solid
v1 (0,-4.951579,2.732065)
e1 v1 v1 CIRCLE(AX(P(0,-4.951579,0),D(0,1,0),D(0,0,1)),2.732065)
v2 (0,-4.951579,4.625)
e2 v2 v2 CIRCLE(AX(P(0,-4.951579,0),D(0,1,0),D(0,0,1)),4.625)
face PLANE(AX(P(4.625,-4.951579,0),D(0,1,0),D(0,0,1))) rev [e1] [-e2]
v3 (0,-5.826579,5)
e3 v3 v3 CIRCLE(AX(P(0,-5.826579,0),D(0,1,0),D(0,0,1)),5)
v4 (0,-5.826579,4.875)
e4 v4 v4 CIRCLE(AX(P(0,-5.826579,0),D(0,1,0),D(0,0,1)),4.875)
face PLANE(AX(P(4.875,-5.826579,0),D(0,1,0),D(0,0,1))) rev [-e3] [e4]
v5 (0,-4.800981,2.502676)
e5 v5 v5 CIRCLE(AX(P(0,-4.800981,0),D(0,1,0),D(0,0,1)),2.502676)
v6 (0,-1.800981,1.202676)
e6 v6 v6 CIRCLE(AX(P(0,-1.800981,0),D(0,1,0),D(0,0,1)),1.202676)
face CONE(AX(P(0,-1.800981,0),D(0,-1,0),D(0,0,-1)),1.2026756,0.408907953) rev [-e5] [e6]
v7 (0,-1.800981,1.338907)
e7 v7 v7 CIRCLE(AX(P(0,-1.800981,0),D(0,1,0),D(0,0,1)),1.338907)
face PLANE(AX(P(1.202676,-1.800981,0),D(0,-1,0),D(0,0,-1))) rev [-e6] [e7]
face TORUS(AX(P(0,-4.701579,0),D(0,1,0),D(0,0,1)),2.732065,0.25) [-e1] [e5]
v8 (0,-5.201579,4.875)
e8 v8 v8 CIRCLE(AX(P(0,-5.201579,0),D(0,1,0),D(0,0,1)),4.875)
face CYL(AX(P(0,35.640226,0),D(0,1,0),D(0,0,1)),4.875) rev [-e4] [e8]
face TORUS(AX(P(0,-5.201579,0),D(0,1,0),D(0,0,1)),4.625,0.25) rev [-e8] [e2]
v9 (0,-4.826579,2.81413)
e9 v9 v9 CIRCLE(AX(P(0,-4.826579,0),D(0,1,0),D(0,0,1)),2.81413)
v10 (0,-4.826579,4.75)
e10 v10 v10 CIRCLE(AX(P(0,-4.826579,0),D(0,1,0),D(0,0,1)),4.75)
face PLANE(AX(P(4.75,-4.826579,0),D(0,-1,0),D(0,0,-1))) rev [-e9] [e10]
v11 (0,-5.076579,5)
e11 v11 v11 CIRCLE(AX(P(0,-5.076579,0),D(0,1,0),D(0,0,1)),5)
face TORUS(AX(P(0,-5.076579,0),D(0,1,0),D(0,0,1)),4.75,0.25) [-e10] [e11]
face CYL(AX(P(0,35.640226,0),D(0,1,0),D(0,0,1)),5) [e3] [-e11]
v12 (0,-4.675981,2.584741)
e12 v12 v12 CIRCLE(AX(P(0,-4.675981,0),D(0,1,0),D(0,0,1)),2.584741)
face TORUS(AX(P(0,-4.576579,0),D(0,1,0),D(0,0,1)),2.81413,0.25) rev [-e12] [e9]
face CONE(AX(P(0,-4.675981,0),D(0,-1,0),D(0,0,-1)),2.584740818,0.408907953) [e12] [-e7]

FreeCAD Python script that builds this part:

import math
import FreeCAD as App
import Part
import Sketcher

doc = App.newDocument("Part")
params = doc.addObject("Spreadsheet::Sheet", "Params")
for row, (alias, value) in enumerate([
    ("sketch1_radius", "0.25 mm"),
    ("revolution_angle", "360 deg"),
], start=1):
    params.set(f"A{row}", alias)
    params.set(f"B{row}", "=" + value)
    params.setAlias(f"B{row}", alias)

body = doc.addObject("PartDesign::Body", "Body")

# Sketch on XY plane
sketch1 = body.newObject("Sketcher::SketchObject", "Sketch")
sketch1.AttachmentSupport = (doc.getObject("XY_Plane"), [""])
sketch1.MapMode = "FlatFace"
sketch1.addGeometry(Part.LineSegment(App.Vector(4.88, -5.2, 0), App.Vector(4.88, -5.83, 0)), False)
sketch1.addGeometry(Part.LineSegment(App.Vector(4.88, -5.83, 0), App.Vector(5, -5.83, 0)), False)
sketch1.addGeometry(Part.LineSegment(App.Vector(5, -5.83, 0), App.Vector(5, -5.08, 0)), False)
sketch1.addGeometry(Part.ArcOfCircle(Part.Circle(App.Vector(4.75, -5.08, 0), App.Vector(0, 0, 1), 0.25), math.radians(0), math.radians(90)), False)
sketch1.addGeometry(Part.LineSegment(App.Vector(4.75, -4.83, 0), App.Vector(2.81, -4.83, 0)), False)
sketch1.addGeometry(Part.ArcOfCircle(Part.Circle(App.Vector(2.81, -4.58, 0), App.Vector(0, 0, 1), 0.25), math.radians(-157), math.radians(-90)), False)
sketch1.addGeometry(Part.LineSegment(App.Vector(2.58, -4.68, 0), App.Vector(1.34, -1.8, 0)), False)
sketch1.addGeometry(Part.LineSegment(App.Vector(1.34, -1.8, 0), App.Vector(1.2, -1.8, 0)), False)
sketch1.addGeometry(Part.LineSegment(App.Vector(1.2, -1.8, 0), App.Vector(2.5, -4.8, 0)), False)
sketch1.addGeometry(Part.ArcOfCircle(Part.Circle(App.Vector(2.73, -4.7, 0), App.Vector(0, 0, 1), 0.25), math.radians(-157), math.radians(-90)), False)
sketch1.addGeometry(Part.LineSegment(App.Vector(2.73, -4.95, 0), App.Vector(4.62, -4.95, 0)), False)
sketch1.addGeometry(Part.ArcOfCircle(Part.Circle(App.Vector(4.62, -5.2, 0), App.Vector(0, 0, 1), 0.25), math.radians(0), math.radians(90)), False)
sketch1.addConstraint(Sketcher.Constraint("Coincident", 0, 2, 1, 1))
sketch1.addConstraint(Sketcher.Constraint("Coincident", 1, 2, 2, 1))
sketch1.addConstraint(Sketcher.Constraint("Tangent", 2, 2, 3, 1))
sketch1.addConstraint(Sketcher.Constraint("Tangent", 3, 2, 4, 1))
sketch1.addConstraint(Sketcher.Constraint("Tangent", 4, 2, 5, 2))
sketch1.addConstraint(Sketcher.Constraint("Tangent", 5, 1, 6, 1))
sketch1.addConstraint(Sketcher.Constraint("Coincident", 6, 2, 7, 1))
sketch1.addConstraint(Sketcher.Constraint("Coincident", 7, 2, 8, 1))
sketch1.addConstraint(Sketcher.Constraint("Tangent", 8, 2, 9, 1))
sketch1.addConstraint(Sketcher.Constraint("Tangent", 9, 2, 10, 1))
sketch1.addConstraint(Sketcher.Constraint("Tangent", 10, 2, 11, 2))
sketch1.addConstraint(Sketcher.Constraint("Tangent", 11, 1, 0, 1))
sketch1.addConstraint(Sketcher.Constraint("Vertical", 0))
sketch1.addConstraint(Sketcher.Constraint("Horizontal", 1))
sketch1.addConstraint(Sketcher.Constraint("Vertical", 2))
sketch1.addConstraint(Sketcher.Constraint("Horizontal", 4))
sketch1.addConstraint(Sketcher.Constraint("Horizontal", 7))
sketch1.addConstraint(Sketcher.Constraint("Horizontal", 10))
sketch1.addConstraint(Sketcher.Constraint("Equal", 3, 5))
sketch1.addConstraint(Sketcher.Constraint("Equal", 5, 9))
sketch1.addConstraint(Sketcher.Constraint("Equal", 9, 11))
sketch1.addConstraint(Sketcher.Constraint("Parallel", 6, 8))
sketch1.addConstraint(Sketcher.Constraint("Radius", 3, 0.25))
sketch1.addConstraint(Sketcher.Constraint("DistanceX", -1, 1, 1, 2, 5.0))
sketch1.addConstraint(Sketcher.Constraint("DistanceY", 0, 2, 3, 2, 1.0))
sketch1.addConstraint(Sketcher.Constraint("DistanceX", 1, 1, 1, 2, 0.125))
sketch1.addConstraint(Sketcher.Constraint("DistanceY", 0, 2, 0, 1, 0.625))
sketch1.addConstraint(Sketcher.Constraint("DistanceY", 5, 1, 6, 2, 2.875))
sketch1.addConstraint(Sketcher.Constraint("DistanceX", 4, 2, 4, 1, 1.93587))
sketch1.addConstraint(Sketcher.Constraint("DistanceX", 7, 2, 7, 1, 0.136232))
sketch1.addConstraint(Sketcher.Constraint("DistanceY", 9, 3, 5, 1, 0.025598))
sketch1.addConstraint(Sketcher.Constraint("DistanceY", 3, 3, -1, 1, 5.076579))
sketch1.setExpression("Constraints[22]", "Params.sketch1_radius")
revolution = body.newObject("PartDesign::Revolution", "Revolution")
revolution.Profile = sketch1
revolution.ReferenceAxis = (sketch1, ["V_Axis"])
revolution.setExpression("Angle", "Params.revolution_angle")

doc.recompute()
